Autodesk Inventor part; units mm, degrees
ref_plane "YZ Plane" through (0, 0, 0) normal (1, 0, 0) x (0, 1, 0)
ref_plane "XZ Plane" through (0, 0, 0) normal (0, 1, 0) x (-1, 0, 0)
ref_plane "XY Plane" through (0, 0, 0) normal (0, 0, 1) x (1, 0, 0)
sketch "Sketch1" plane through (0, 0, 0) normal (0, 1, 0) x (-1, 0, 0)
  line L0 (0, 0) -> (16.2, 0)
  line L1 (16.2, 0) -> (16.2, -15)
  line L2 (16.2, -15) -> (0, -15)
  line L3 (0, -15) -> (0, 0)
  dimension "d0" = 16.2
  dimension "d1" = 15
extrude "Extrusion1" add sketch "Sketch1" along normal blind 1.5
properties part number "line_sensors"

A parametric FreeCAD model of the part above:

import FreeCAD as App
import Part
import Sketcher

doc = App.newDocument("Part")
params = doc.addObject("Spreadsheet::Sheet", "Params")
for row, (alias, value) in enumerate([
    ("sketch1_height", "15 mm"),
    ("sketch1_width", "16.2 mm"),
    ("pad1_length", "1.5 mm"),
], start=1):
    params.set(f"A{row}", alias)
    params.set(f"B{row}", "=" + value)
    params.setAlias(f"B{row}", alias)

body = doc.addObject("PartDesign::Body", "Body")

# Sketch on XZ plane
sketch1 = body.newObject("Sketcher::SketchObject", "Sketch")
sketch1.AttachmentSupport = (doc.getObject("XZ_Plane"), [""])
sketch1.MapMode = "FlatFace"
sketch1.addGeometry(Part.LineSegment(App.Vector(-16, 0, 0), App.Vector(0, 0, 0)), False)
sketch1.addGeometry(Part.LineSegment(App.Vector(0, 0, 0), App.Vector(0, -15, 0)), False)
sketch1.addGeometry(Part.LineSegment(App.Vector(0, -15, 0), App.Vector(-16, -15, 0)), False)
sketch1.addGeometry(Part.LineSegment(App.Vector(-16, -15, 0), App.Vector(-16, 0, 0)), False)
sketch1.addConstraint(Sketcher.Constraint("Coincident", 0, 2, 1, 1))
sketch1.addConstraint(Sketcher.Constraint("Coincident", 1, 2, 2, 1))
sketch1.addConstraint(Sketcher.Constraint("Coincident", 2, 2, 3, 1))
sketch1.addConstraint(Sketcher.Constraint("Coincident", 3, 2, 0, 1))
sketch1.addConstraint(Sketcher.Constraint("Horizontal", 0))
sketch1.addConstraint(Sketcher.Constraint("Vertical", 1))
sketch1.addConstraint(Sketcher.Constraint("Horizontal", 2))
sketch1.addConstraint(Sketcher.Constraint("Vertical", 3))
sketch1.addConstraint(Sketcher.Constraint("Coincident", 0, 2, -1, 1))
sketch1.addConstraint(Sketcher.Constraint("DistanceY", 1, 2, 1, 1, 15.0))
sketch1.addConstraint(Sketcher.Constraint("DistanceX", 0, 1, 0, 2, 16.2))
sketch1.setExpression("Constraints[9]", "Params.sketch1_height")
sketch1.setExpression("Constraints[10]", "Params.sketch1_width")
pad1 = body.newObject("PartDesign::Pad", "Pad")
pad1.Profile = sketch1
pad1.setExpression("Length", "Params.pad1_length")
pad1.Reversed = True

doc.recompute()
